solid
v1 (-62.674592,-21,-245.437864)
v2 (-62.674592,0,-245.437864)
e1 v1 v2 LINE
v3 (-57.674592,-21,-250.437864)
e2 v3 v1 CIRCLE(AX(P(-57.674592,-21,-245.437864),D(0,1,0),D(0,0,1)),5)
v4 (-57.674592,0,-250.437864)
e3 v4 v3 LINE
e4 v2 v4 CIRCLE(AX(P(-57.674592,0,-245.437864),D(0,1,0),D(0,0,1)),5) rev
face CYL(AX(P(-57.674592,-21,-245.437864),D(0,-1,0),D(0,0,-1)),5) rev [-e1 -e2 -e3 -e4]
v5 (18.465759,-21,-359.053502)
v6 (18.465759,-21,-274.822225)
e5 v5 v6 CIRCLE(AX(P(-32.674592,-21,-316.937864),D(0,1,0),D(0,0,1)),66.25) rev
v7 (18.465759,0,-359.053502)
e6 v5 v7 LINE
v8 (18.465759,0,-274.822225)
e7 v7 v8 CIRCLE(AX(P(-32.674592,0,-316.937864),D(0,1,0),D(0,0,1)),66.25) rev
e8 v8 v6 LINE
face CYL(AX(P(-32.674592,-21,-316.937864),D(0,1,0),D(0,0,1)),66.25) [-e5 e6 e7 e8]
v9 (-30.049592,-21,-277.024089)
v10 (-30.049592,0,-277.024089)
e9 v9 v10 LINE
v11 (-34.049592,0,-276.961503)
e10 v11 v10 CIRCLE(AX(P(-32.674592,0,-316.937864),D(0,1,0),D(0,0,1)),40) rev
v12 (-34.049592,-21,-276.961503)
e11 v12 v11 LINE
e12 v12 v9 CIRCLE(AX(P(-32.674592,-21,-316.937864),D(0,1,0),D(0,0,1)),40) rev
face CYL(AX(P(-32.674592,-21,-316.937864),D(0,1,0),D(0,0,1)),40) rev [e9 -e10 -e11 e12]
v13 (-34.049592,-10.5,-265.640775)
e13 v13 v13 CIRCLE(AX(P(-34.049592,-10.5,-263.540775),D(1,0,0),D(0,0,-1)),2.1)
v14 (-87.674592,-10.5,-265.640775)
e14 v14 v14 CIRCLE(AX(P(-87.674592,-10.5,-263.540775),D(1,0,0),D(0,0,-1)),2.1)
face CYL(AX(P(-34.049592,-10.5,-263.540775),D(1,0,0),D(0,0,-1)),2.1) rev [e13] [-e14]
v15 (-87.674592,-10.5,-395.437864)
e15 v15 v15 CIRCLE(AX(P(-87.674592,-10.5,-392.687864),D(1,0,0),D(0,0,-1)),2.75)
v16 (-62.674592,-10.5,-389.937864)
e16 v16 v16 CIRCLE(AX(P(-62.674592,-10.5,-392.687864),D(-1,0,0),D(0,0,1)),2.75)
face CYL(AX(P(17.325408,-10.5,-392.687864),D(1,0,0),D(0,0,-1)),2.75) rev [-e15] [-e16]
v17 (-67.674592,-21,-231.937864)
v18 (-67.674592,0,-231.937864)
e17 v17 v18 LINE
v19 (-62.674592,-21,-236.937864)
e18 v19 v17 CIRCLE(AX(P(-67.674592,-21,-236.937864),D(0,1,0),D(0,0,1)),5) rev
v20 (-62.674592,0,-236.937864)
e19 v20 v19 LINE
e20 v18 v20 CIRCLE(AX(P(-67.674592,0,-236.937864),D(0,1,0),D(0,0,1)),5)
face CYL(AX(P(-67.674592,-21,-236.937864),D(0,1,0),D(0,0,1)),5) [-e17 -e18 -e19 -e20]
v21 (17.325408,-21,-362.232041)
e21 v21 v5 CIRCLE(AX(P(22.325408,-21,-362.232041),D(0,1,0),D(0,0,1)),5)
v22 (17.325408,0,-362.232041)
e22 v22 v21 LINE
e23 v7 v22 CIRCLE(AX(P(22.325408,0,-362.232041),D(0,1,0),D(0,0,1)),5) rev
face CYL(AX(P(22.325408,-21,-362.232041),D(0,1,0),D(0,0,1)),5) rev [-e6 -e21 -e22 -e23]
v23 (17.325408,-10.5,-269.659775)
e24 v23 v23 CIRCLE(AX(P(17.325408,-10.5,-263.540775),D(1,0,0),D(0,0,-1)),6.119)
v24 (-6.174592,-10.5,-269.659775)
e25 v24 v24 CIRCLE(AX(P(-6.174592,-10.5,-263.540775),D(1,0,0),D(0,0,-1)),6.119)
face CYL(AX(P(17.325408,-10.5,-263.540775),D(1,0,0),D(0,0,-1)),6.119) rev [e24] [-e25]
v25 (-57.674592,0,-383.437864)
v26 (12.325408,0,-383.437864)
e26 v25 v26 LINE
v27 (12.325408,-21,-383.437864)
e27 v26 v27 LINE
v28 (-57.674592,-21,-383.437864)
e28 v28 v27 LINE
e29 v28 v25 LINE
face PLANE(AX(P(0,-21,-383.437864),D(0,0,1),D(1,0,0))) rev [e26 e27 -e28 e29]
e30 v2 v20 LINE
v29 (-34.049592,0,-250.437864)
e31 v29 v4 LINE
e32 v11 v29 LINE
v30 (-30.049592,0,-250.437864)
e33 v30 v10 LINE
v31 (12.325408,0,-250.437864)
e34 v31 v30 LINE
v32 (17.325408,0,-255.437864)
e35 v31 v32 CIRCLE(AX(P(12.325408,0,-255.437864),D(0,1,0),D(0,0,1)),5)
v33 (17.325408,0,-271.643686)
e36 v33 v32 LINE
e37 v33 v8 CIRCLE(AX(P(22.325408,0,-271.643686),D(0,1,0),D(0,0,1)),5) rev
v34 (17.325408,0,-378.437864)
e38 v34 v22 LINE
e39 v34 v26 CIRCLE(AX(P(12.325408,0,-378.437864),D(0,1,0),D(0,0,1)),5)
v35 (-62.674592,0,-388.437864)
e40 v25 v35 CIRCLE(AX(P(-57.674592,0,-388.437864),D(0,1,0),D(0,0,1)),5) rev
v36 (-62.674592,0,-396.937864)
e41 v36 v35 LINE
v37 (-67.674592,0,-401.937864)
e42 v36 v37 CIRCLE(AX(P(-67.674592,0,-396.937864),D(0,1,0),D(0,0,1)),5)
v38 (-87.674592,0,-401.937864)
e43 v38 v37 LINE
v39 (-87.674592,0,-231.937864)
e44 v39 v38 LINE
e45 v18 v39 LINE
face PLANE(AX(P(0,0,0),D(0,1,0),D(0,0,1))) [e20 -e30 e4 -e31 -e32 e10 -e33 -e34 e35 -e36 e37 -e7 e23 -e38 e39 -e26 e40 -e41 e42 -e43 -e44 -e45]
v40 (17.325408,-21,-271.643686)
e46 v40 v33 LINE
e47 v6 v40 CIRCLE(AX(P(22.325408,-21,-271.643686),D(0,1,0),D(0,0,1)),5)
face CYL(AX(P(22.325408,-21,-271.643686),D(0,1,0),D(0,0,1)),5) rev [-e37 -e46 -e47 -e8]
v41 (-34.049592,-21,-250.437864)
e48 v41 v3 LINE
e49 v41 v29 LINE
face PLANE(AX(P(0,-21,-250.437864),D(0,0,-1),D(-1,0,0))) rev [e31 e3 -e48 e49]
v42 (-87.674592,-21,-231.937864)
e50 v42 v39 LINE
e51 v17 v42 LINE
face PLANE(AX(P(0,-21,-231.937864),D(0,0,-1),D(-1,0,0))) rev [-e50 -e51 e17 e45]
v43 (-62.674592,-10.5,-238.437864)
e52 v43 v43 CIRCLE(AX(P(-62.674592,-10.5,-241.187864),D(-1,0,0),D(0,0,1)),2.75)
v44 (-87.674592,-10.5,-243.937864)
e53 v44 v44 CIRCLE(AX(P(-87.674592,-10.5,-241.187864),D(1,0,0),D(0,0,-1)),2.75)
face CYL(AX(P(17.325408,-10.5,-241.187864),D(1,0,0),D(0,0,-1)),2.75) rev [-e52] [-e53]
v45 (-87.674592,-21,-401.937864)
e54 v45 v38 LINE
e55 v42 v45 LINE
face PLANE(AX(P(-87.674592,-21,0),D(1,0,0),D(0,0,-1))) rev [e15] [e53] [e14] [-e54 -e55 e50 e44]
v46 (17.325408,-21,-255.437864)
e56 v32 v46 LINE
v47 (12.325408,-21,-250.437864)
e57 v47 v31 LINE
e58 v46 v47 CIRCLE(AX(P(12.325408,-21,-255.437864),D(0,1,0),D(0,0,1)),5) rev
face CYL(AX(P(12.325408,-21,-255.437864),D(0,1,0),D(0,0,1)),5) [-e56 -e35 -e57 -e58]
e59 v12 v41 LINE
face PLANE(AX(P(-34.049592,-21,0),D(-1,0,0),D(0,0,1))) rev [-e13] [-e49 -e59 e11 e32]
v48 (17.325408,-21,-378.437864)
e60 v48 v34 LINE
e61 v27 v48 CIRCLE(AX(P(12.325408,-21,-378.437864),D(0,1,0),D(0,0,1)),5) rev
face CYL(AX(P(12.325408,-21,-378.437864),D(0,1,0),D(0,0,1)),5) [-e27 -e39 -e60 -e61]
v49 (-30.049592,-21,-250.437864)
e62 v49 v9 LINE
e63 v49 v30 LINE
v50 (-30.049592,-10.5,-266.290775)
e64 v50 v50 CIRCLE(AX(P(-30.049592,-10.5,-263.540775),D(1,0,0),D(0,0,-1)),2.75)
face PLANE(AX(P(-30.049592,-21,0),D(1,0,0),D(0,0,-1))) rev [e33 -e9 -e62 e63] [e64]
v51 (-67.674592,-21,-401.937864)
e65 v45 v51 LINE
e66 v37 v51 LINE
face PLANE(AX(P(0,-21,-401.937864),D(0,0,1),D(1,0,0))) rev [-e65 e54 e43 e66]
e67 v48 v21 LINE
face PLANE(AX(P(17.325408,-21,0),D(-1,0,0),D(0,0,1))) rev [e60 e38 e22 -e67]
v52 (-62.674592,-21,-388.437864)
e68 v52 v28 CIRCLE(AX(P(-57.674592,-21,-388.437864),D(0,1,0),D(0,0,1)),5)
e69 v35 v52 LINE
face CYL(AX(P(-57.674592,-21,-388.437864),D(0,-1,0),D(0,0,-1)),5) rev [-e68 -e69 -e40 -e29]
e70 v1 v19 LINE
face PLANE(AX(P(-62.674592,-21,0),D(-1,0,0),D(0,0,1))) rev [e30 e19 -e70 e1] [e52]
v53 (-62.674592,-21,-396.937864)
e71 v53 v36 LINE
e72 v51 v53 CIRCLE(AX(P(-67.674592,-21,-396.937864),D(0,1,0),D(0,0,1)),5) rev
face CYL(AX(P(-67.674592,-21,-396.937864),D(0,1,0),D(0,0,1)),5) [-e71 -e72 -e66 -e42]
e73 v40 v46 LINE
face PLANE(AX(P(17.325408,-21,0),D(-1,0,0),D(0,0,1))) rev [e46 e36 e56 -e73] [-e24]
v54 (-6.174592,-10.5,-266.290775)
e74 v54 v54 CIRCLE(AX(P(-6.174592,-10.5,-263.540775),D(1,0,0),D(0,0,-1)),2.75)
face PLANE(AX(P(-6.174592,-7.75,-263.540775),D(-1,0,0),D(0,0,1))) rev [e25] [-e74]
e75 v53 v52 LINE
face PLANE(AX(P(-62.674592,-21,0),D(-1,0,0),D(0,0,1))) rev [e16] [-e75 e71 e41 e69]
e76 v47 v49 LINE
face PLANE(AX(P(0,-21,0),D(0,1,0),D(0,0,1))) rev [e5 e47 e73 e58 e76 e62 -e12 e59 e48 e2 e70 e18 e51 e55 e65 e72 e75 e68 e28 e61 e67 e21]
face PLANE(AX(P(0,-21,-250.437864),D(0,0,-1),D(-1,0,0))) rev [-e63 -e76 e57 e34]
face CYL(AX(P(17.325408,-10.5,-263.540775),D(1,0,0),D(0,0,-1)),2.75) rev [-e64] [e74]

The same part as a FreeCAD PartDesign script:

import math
import FreeCAD as App
import Part
import Sketcher


def edges_at(feature, points):
    """Names of the edges that pass closest to the given points."""
    edges = feature.Shape.Edges
    near = lambda p: min(range(len(edges)), key=lambda i: edges[i].distToShape(Part.Vertex(*p))[0])
    return sorted({f"Edge{near(p) + 1}" for p in points})

doc = App.newDocument("Part")
params = doc.addObject("Spreadsheet::Sheet", "Params")
for row, (alias, value) in enumerate([
    ("sketch1_radius", "40 mm"),
    ("sketch1_width", "25 mm"),
    ("sketch1_width2", "80 mm"),
    ("sketch1_height", "170 mm"),
    ("sketch1_radius2", "66.25 mm"),
    ("pad1_length", "21 mm"),
    ("fillet_radius", "5 mm"),
    ("sketch2_diameter", "5.5 mm"),
    ("hole_diameter", "5.5 mm"),
    ("sketch3_diameter", "5.5 mm"),
    ("hole2_diameter", "5.5 mm"),
    ("hole2_depth", "47.375 mm"),
    ("hole2_cbore_diameter", "12.238 mm"),
    ("hole2_cbore_depth", "23.5 mm"),
    ("sketch4_diameter", "4.2 mm"),
    ("hole3_diameter", "4.2 mm"),
    ("hole3_depth", "53.625 mm"),
], start=1):
    params.set(f"A{row}", alias)
    params.set(f"B{row}", "=" + value)
    params.setAlias(f"B{row}", alias)

body = doc.addObject("PartDesign::Body", "Body")

# Sketch on XZ plane
sketch1 = body.newObject("Sketcher::SketchObject", "Sketch")
sketch1.AttachmentSupport = (doc.getObject("XZ_Plane"), [""])
sketch1.MapMode = "FlatFace"
sketch1.addGeometry([
    Part.LineSegment(App.Vector(17.3, -250.4, 0), App.Vector(-30, -250.4, 0)),  # 0
    Part.LineSegment(App.Vector(-30, -250.4, 0), App.Vector(-30, -277, 0)),  # 1
    Part.ArcOfCircle(Part.Circle(App.Vector(-32.7, -316.9, 0), App.Vector(0, 0, 1), 40), math.radians(92), math.radians(446)),  # 2
    Part.LineSegment(App.Vector(-34, -277, 0), App.Vector(-34, -250.4, 0)),  # 3
    Part.LineSegment(App.Vector(-34, -250.4, 0), App.Vector(-62.7, -250.4, 0)),  # 4
    Part.LineSegment(App.Vector(-62.7, -250.4, 0), App.Vector(-62.7, -231.9, 0)),  # 5
    Part.LineSegment(App.Vector(-62.7, -231.9, 0), App.Vector(-87.7, -231.9, 0)),  # 6
    Part.LineSegment(App.Vector(-87.7, -231.9, 0), App.Vector(-87.7, -401.9, 0)),  # 7
    Part.LineSegment(App.Vector(-87.7, -401.9, 0), App.Vector(-62.7, -401.9, 0)),  # 8
    Part.LineSegment(App.Vector(-62.7, -401.9, 0), App.Vector(-62.7, -383.4, 0)),  # 9
    Part.LineSegment(App.Vector(-62.7, -383.4, 0), App.Vector(17.3, -383.4, 0)),  # 10
    Part.LineSegment(App.Vector(17.3, -383.4, 0), App.Vector(17.3, -360.4, 0)),  # 11
    Part.ArcOfCircle(Part.Circle(App.Vector(-32.7, -316.9, 0), App.Vector(0, 0, 1), 66.3), math.radians(-41), math.radians(41)),  # 12
    Part.LineSegment(App.Vector(17.3, -273.5, 0), App.Vector(17.3, -250.4, 0)),  # 13
], False)
sketch1.addConstraint([
    Sketcher.Constraint("Coincident", 0, 2, 1, 1),
    Sketcher.Constraint("Coincident", 1, 2, 2, 2),
    Sketcher.Constraint("Coincident", 2, 1, 3, 1),
    Sketcher.Constraint("Coincident", 3, 2, 4, 1),
    Sketcher.Constraint("Coincident", 4, 2, 5, 1),
    Sketcher.Constraint("Coincident", 5, 2, 6, 1),
    Sketcher.Constraint("Coincident", 6, 2, 7, 1),
    Sketcher.Constraint("Coincident", 7, 2, 8, 1),
    Sketcher.Constraint("Coincident", 8, 2, 9, 1),
    Sketcher.Constraint("Coincident", 9, 2, 10, 1),
    Sketcher.Constraint("Coincident", 10, 2, 11, 1),
    Sketcher.Constraint("Coincident", 11, 2, 12, 1),
    Sketcher.Constraint("Coincident", 12, 2, 13, 1),
    Sketcher.Constraint("Coincident", 13, 2, 0, 1),
    Sketcher.Constraint("Horizontal", 0),
    Sketcher.Constraint("Vertical", 1),
    Sketcher.Constraint("Vertical", 3),
    Sketcher.Constraint("Horizontal", 4),
    Sketcher.Constraint("Vertical", 5),
    Sketcher.Constraint("Horizontal", 6),
    Sketcher.Constraint("Vertical", 7),
    Sketcher.Constraint("Horizontal", 8),
    Sketcher.Constraint("Vertical", 9),
    Sketcher.Constraint("Horizontal", 10),
    Sketcher.Constraint("Vertical", 11),
    Sketcher.Constraint("Vertical", 13),
    Sketcher.Constraint("Coincident", 12, 3, 2, 3),
    Sketcher.Constraint("Horizontal", 0, 2, 3, 2),
    Sketcher.Constraint("Vertical", 5, 2, 8, 2),
    Sketcher.Constraint("Vertical", 11, 2, 12, 2),
    Sketcher.Constraint("Equal", 5, 9),
    Sketcher.Constraint("Equal", 11, 13),
    Sketcher.Constraint("Radius", 2, 40.0),
    Sketcher.Constraint("DistanceX", 6, 2, 6, 1, 25.0),
    Sketcher.Constraint("DistanceX", 10, 1, 10, 2, 80.0),
    Sketcher.Constraint("DistanceY", 7, 2, 7, 1, 170.0),
    Sketcher.Constraint("Radius", 12, 66.25),
    Sketcher.Constraint("DistanceY", 5, 1, 5, 2, 18.5),
    Sketcher.Constraint("DistanceX", 2, 1, 1, 2, 4.0),
    Sketcher.Constraint("DistanceX", 4, 2, 2, 3, 30.0),
    Sketcher.Constraint("DistanceX", 0, 2, 0, 1, 47.375),
    Sketcher.Constraint("DistanceX", 2, 3, -1, 1, 32.674592),
    Sketcher.Constraint("DistanceY", 1, 2, -1, 1, 277.024089),
])
sketch1.setExpression("Constraints[32]", "Params.sketch1_radius")
sketch1.setExpression("Constraints[33]", "Params.sketch1_width")
sketch1.setExpression("Constraints[34]", "Params.sketch1_width2")
sketch1.setExpression("Constraints[35]", "Params.sketch1_height")
sketch1.setExpression("Constraints[36]", "Params.sketch1_radius2")
pad1 = body.newObject("PartDesign::Pad", "Pad")
pad1.Profile = sketch1
pad1.setExpression("Length", "Params.pad1_length")
doc.recompute()

fillet = body.newObject("PartDesign::Fillet", "Fillet")
fillet.Base = (pad1, edges_at(pad1, [
    (-62.675, -10.5, -250.438),
    (-62.675, -10.5, -231.938),
    (-62.675, -10.5, -401.938),
    (-62.675, -10.5, -383.438),
    (17.325, -10.5, -383.438),
    (17.325, -10.5, -360.401),
    (17.325, -10.5, -273.475),
    (17.325, -10.5, -250.438),
]))
fillet.setExpression("Radius", "Params.fillet_radius")

# Sketch on YZ plane
sketch2 = body.newObject("Sketcher::SketchObject", "Sketch001")
sketch2.AttachmentSupport = (doc.getObject("YZ_Plane"), [""])
sketch2.MapMode = "FlatFace"
sketch2.AttachmentOffset = App.Placement(App.Vector(0, 0, 17.325408), App.Rotation())
sketch2.addGeometry([
    Part.Circle(App.Vector(-10.5, -392.7, 0), App.Vector(0, 0, 1), 2.8),
    Part.Circle(App.Vector(-10.5, -241.2, 0), App.Vector(0, 0, 1), 2.8),
], False)
sketch2.addConstraint([
    Sketcher.Constraint("Equal", 0, 1),
    Sketcher.Constraint("Vertical", 0, 3, 1, 3),
    Sketcher.Constraint("Diameter", 0, 5.5),
    Sketcher.Constraint("DistanceX", 0, 3, -1, 1, 10.5),
    Sketcher.Constraint("DistanceY", 0, 3, 1, 3, 151.5),
    Sketcher.Constraint("DistanceY", 0, 3, -1, 1, 392.687864),
])
sketch2.setExpression("Constraints[2]", "Params.sketch2_diameter")
doc.recompute()
hole = body.newObject("PartDesign::Hole", "Hole")
hole.Profile = sketch2
hole.ThreadType = "None"
hole.setExpression("Diameter", "Params.hole_diameter")
hole.DepthType = "ThroughAll"

# Sketch on YZ plane
sketch3 = body.newObject("Sketcher::SketchObject", "Sketch002")
sketch3.AttachmentSupport = (doc.getObject("YZ_Plane"), [""])
sketch3.MapMode = "FlatFace"
sketch3.AttachmentOffset = App.Placement(App.Vector(0, 0, 17.325408), App.Rotation())
sketch3.addGeometry(Part.Circle(App.Vector(-10.5, -263.5, 0), App.Vector(0, 0, 1), 2.8), False)
sketch3.addConstraint([
    Sketcher.Constraint("Diameter", 0, 5.5),
    Sketcher.Constraint("DistanceX", 0, 3, -1, 1, 10.5),
    Sketcher.Constraint("DistanceY", 0, 3, -1, 1, 263.540775),
])
sketch3.setExpression("Constraints[0]", "Params.sketch3_diameter")
doc.recompute()
hole2 = body.newObject("PartDesign::Hole", "Hole001")
hole2.Profile = sketch3
hole2.ThreadType = "None"
hole2.setExpression("Diameter", "Params.hole2_diameter")
hole2.DepthType = "Dimension"
hole2.setExpression("Depth", "Params.hole2_depth")
hole2.DrillPoint = "Flat"
hole2.HoleCutType = "Counterbore"
hole2.setExpression("HoleCutDiameter", "Params.hole2_cbore_diameter")
hole2.setExpression("HoleCutDepth", "Params.hole2_cbore_depth")

# Sketch on YZ plane
sketch4 = body.newObject("Sketcher::SketchObject", "Sketch003")
sketch4.AttachmentSupport = (doc.getObject("YZ_Plane"), [""])
sketch4.MapMode = "FlatFace"
sketch4.AttachmentOffset = App.Placement(App.Vector(0, 0, -34.049592), App.Rotation())
sketch4.addGeometry(Part.Circle(App.Vector(-10.5, -263.5, 0), App.Vector(0, 0, 1), 2.1), False)
sketch4.addConstraint([
    Sketcher.Constraint("Diameter", 0, 4.2),
    Sketcher.Constraint("DistanceX", 0, 3, -1, 1, 10.5),
    Sketcher.Constraint("DistanceY", 0, 3, -1, 1, 263.540775),
])
sketch4.setExpression("Constraints[0]", "Params.sketch4_diameter")
doc.recompute()
hole3 = body.newObject("PartDesign::Hole", "Hole002")
hole3.Profile = sketch4
hole3.ThreadType = "None"
hole3.setExpression("Diameter", "Params.hole3_diameter")
hole3.DepthType = "Dimension"
hole3.setExpression("Depth", "Params.hole3_depth")
hole3.DrillPoint = "Flat"

doc.recompute()
